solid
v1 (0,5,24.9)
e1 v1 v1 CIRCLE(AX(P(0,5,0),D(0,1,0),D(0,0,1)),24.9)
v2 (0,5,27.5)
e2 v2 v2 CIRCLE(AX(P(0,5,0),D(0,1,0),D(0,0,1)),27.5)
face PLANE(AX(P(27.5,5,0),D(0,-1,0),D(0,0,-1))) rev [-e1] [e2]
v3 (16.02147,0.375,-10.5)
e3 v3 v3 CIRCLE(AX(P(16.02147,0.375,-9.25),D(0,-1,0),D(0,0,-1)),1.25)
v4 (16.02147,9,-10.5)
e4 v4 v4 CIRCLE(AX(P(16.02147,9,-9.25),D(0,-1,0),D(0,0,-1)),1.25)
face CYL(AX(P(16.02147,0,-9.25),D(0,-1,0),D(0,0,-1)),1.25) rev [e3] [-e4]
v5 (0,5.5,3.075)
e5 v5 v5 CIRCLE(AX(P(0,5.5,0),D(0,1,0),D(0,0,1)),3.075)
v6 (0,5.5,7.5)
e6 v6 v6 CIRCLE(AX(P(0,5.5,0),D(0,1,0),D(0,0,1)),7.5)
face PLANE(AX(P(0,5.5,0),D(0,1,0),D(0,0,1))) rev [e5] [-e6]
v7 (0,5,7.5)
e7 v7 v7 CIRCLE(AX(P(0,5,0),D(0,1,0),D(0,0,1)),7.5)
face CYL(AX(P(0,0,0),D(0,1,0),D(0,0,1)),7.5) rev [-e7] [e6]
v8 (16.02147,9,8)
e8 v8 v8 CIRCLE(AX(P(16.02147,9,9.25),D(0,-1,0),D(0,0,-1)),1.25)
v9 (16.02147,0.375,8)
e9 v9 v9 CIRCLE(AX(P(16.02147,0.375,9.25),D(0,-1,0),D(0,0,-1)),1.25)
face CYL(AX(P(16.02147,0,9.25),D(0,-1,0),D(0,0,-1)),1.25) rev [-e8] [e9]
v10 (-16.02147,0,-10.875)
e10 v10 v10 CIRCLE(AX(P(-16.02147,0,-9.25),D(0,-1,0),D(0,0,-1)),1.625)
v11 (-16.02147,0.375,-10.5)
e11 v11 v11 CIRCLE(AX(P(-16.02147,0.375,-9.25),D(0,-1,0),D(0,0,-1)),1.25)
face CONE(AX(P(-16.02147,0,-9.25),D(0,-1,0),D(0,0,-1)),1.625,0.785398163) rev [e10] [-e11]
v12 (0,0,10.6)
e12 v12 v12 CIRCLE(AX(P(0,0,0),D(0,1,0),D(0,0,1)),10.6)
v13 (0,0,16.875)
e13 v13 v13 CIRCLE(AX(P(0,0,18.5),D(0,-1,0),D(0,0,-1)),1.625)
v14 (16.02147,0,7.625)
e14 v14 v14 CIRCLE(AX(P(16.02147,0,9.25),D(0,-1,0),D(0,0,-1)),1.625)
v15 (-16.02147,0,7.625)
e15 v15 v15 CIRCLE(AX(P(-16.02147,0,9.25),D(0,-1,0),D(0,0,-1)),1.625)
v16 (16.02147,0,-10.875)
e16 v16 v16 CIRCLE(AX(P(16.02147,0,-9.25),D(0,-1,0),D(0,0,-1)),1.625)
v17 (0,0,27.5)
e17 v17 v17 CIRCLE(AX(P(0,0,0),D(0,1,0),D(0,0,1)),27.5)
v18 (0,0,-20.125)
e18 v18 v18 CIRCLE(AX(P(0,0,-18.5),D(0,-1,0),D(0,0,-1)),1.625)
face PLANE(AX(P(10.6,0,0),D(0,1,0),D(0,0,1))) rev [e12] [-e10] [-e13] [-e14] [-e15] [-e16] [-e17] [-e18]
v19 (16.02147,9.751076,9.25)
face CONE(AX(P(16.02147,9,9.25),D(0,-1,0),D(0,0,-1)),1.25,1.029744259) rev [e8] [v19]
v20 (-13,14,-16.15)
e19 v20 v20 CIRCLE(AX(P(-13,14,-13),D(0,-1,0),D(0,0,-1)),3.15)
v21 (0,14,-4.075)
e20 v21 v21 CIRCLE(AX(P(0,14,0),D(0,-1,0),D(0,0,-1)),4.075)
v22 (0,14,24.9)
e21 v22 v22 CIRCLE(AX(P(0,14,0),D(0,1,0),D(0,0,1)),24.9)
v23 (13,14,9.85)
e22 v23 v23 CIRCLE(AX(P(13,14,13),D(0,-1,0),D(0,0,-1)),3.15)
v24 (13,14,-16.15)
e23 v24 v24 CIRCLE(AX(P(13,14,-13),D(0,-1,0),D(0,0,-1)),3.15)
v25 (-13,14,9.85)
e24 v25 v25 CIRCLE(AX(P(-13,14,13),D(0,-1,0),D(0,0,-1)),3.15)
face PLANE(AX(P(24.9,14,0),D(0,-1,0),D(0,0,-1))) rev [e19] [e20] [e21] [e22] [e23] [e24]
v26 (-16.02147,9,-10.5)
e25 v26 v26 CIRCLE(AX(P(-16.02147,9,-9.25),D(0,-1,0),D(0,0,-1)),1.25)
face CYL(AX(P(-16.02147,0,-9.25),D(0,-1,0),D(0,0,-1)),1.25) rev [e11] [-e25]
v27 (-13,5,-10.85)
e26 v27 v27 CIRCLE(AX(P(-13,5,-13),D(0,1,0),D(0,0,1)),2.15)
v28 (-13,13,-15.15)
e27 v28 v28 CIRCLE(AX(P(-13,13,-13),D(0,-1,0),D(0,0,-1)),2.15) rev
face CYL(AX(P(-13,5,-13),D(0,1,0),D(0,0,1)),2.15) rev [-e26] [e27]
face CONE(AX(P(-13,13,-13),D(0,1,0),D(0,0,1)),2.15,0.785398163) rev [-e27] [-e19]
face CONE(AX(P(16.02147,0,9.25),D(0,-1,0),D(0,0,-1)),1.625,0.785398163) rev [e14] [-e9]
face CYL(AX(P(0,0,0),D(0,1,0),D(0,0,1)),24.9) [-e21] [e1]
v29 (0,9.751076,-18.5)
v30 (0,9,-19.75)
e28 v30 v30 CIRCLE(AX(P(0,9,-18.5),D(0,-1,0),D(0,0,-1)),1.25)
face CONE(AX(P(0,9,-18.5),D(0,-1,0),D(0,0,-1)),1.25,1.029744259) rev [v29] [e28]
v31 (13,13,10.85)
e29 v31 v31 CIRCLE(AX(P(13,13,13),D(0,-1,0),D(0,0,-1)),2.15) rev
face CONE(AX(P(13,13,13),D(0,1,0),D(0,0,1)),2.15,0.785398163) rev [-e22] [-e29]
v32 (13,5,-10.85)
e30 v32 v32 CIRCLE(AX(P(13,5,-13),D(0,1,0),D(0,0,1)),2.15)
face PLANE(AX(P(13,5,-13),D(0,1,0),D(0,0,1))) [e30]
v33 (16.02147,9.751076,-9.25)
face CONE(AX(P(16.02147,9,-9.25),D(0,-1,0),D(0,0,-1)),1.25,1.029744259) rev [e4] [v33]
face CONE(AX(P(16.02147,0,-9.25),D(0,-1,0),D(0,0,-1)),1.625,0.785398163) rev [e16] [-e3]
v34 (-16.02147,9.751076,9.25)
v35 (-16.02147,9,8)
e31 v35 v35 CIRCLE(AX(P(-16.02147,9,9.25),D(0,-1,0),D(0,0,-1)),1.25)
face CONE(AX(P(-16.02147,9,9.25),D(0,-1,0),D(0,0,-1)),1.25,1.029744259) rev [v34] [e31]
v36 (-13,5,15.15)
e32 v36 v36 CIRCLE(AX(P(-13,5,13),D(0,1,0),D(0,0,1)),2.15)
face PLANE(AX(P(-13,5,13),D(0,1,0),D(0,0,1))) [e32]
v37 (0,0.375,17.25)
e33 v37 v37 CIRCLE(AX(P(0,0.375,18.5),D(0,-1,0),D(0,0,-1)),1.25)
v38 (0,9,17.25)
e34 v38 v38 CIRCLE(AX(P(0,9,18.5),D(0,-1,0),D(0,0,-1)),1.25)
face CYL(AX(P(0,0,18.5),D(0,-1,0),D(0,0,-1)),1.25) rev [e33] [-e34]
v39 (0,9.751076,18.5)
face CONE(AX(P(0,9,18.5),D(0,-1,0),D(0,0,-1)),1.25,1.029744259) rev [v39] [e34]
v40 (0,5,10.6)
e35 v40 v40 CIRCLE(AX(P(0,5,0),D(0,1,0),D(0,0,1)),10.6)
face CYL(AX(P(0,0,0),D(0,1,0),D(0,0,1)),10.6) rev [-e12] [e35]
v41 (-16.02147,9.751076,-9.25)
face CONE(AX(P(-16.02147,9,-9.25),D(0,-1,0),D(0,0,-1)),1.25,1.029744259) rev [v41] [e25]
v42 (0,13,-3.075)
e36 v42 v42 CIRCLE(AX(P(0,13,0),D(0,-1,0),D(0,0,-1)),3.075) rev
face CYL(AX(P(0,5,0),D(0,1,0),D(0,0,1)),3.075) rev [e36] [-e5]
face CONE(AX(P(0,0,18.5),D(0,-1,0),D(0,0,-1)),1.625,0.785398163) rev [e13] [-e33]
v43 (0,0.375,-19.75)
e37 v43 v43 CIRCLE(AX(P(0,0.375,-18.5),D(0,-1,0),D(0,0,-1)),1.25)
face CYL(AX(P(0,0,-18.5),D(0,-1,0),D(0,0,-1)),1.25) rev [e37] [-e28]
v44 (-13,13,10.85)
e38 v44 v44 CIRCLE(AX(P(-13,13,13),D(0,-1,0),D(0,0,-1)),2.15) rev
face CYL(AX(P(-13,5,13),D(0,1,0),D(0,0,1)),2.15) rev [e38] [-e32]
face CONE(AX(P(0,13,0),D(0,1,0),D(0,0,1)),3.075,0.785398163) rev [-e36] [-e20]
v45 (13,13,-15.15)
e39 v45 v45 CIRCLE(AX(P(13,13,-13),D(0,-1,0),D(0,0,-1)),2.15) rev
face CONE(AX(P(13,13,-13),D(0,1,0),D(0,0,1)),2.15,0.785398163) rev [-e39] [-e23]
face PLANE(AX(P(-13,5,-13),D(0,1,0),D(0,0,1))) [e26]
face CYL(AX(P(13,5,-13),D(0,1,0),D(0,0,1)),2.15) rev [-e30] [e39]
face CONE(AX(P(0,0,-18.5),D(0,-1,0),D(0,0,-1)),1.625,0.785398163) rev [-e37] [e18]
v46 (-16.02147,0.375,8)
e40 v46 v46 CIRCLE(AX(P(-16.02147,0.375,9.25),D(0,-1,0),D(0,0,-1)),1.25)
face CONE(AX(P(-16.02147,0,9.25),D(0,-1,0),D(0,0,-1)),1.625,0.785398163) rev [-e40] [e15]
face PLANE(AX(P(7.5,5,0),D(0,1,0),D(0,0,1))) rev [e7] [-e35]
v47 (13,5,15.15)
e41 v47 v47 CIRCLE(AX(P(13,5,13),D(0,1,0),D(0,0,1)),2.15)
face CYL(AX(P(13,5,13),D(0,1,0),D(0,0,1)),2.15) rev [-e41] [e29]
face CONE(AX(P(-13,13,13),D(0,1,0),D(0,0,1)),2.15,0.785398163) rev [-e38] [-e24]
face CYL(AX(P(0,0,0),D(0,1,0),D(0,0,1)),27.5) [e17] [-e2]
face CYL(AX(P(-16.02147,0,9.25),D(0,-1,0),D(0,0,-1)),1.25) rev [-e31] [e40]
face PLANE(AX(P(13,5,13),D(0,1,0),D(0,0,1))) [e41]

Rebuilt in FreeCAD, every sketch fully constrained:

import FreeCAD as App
import Part
import Sketcher

V = App.Vector
Q = App.Units.Quantity


def edges_at(feature, points):
    """Names of the edges that pass closest to the given points."""
    edges = feature.Shape.Edges
    near = lambda p: min(range(len(edges)), key=lambda i: edges[i].distToShape(Part.Vertex(*p))[0])
    return sorted({f"Edge{near(p) + 1}" for p in points})

doc = App.newDocument("Part")
params = doc.addObject("Spreadsheet::Sheet", "Params")
for row, (alias, value) in enumerate([
    ("sketch1_height", "5 mm"),
    ("sketch1_height2", "9 mm"),
    ("sketch1_width", "16.9 mm"),
    ("sketch1_width2", "2.6 mm"),
    ("sketch1_width3", "24.9 mm"),
    ("revolution_angle", "360 deg"),
    ("sketch2_diameter", "2.5 mm"),
    ("hole_diameter", "2.5 mm"),
    ("hole_depth", "9 mm"),
    ("hole_csink_diameter", "3.25 mm"),
    ("sketch3_diameter", "4.3 mm"),
    ("sketch3_diameter2", "6.15 mm"),
    ("pocket1_length", "9 mm"),
    ("chamfer_size", "1 mm"),
], start=1):
    params.set(f"A{row}", alias)
    params.set(f"B{row}", "=" + value)
    params.setAlias(f"B{row}", alias)

body = doc.addObject("PartDesign::Body", "Body")

sketch1 = body.newObject("Sketcher::SketchObject", "Sketch")
sketch1.AttachmentSupport = (doc.getObject("XY_Plane"), [""])
sketch1.MapMode = "FlatFace"
sketch1.addGeometry([
    Part.LineSegment(V(10.6, 0, 0), V(27.5, 0, 0)),
    Part.LineSegment(V(27.5, 0, 0), V(27.5, 5, 0)),
    Part.LineSegment(V(27.5, 5, 0), V(24.9, 5, 0)),
    Part.LineSegment(V(24.9, 5, 0), V(24.9, 14, 0)),
    Part.LineSegment(V(24.9, 14, 0), V(0, 14, 0)),
    Part.LineSegment(V(0, 14, 0), V(0, 5.5, 0)),
    Part.LineSegment(V(0, 5.5, 0), V(7.5, 5.5, 0)),
    Part.LineSegment(V(7.5, 5.5, 0), V(7.5, 5, 0)),
    Part.LineSegment(V(7.5, 5, 0), V(10.6, 5, 0)),
    Part.LineSegment(V(10.6, 5, 0), V(10.6, 0, 0)),
], False)
sketch1.addConstraint([
    Sketcher.Constraint("Coincident", 0, 2, 1, 1),
    Sketcher.Constraint("Coincident", 1, 2, 2, 1),
    Sketcher.Constraint("Coincident", 2, 2, 3, 1),
    Sketcher.Constraint("Coincident", 3, 2, 4, 1),
    Sketcher.Constraint("Coincident", 4, 2, 5, 1),
    Sketcher.Constraint("Coincident", 5, 2, 6, 1),
    Sketcher.Constraint("Coincident", 6, 2, 7, 1),
    Sketcher.Constraint("Coincident", 7, 2, 8, 1),
    Sketcher.Constraint("Coincident", 8, 2, 9, 1),
    Sketcher.Constraint("Coincident", 9, 2, 0, 1),
    Sketcher.Constraint("Horizontal", 0),
    Sketcher.Constraint("Vertical", 1),
    Sketcher.Constraint("Horizontal", 2),
    Sketcher.Constraint("Vertical", 3),
    Sketcher.Constraint("Horizontal", 4),
    Sketcher.Constraint("Vertical", 5),
    Sketcher.Constraint("Horizontal", 6),
    Sketcher.Constraint("Vertical", 7),
    Sketcher.Constraint("Horizontal", 8),
    Sketcher.Constraint("Vertical", 9),
    Sketcher.Constraint("PointOnObject", 0, 2, -1),
    Sketcher.Constraint("PointOnObject", 4, 2, -2),
    Sketcher.Constraint("Horizontal", 2, 2, 7, 2),
    Sketcher.Constraint("DistanceY", 1, 1, 1, 2, Q("5 mm")),
    Sketcher.Constraint("DistanceY", 3, 1, 3, 2, Q("9 mm")),
    Sketcher.Constraint("DistanceX", 0, 1, 0, 2, Q("16.9 mm")),
    Sketcher.Constraint("DistanceX", 2, 2, 2, 1, Q("2.6 mm")),
    Sketcher.Constraint("DistanceX", 4, 2, 4, 1, Q("24.9 mm")),
    Sketcher.Constraint("DistanceX", 6, 1, 6, 2, Q("7.5 mm")),
    Sketcher.Constraint("DistanceY", 5, 2, 5, 1, Q("8.5 mm")),
])
sketch1.setExpression("Constraints[23]", "Params.sketch1_height")
sketch1.setExpression("Constraints[24]", "Params.sketch1_height2")
sketch1.setExpression("Constraints[25]", "Params.sketch1_width")
sketch1.setExpression("Constraints[26]", "Params.sketch1_width2")
sketch1.setExpression("Constraints[27]", "Params.sketch1_width3")
revolution = body.newObject("PartDesign::Revolution", "Revolution")
revolution.Profile = sketch1
revolution.ReferenceAxis = (sketch1, ["V_Axis"])
revolution.setExpression("Angle", "Params.revolution_angle")

sketch2 = body.newObject("Sketcher::SketchObject", "Sketch001")
sketch2.AttachmentSupport = (doc.getObject("XZ_Plane"), [""])
sketch2.MapMode = "FlatFace"
sketch2.addGeometry([
    Part.Circle(V(16, -9.2, 0), V(0, 0, 1), 1.2),
    Part.Circle(V(0, -18.5, 0), V(0, 0, 1), 1.2),
    Part.Circle(V(-16, -9.2, 0), V(0, 0, 1), 1.2),
    Part.Circle(V(-16, 9.2, 0), V(0, 0, 1), 1.2),
    Part.Circle(V(0, 18.5, 0), V(0, 0, 1), 1.2),
    Part.Circle(V(16, 9.2, 0), V(0, 0, 1), 1.2),
], False)
sketch2.addConstraint([
    Sketcher.Constraint("Equal", 0, 1),
    Sketcher.Constraint("Equal", 1, 2),
    Sketcher.Constraint("Equal", 2, 3),
    Sketcher.Constraint("Equal", 3, 4),
    Sketcher.Constraint("Equal", 4, 5),
    Sketcher.Constraint("Symmetric", 0, 3, 3, 3, -1, 1),
    Sketcher.Constraint("Symmetric", 1, 3, 4, 3, -1, 1),
    Sketcher.Constraint("Symmetric", 2, 3, 5, 3, -1, 1),
    Sketcher.Constraint("Symmetric", 0, 3, 2, 3, -2),
    Sketcher.Constraint("PointOnObject", 1, 3, -2),
    Sketcher.Constraint("Diameter", 0, Q("2.5 mm")),
    Sketcher.Constraint("DistanceY", 1, 3, 4, 3, Q("37 mm")),
    Sketcher.Constraint("DistanceY", 2, 3, 3, 3, Q("18.5 mm")),
    Sketcher.Constraint("DistanceX", -1, 1, 0, 3, Q("16.02147 mm")),
])
sketch2.setExpression("Constraints[10]", "Params.sketch2_diameter")
doc.recompute()
hole = body.newObject("PartDesign::Hole", "Hole")
hole.Profile = sketch2
hole.ThreadType = "None"
hole.setExpression("Diameter", "Params.hole_diameter")
hole.DepthType = "Dimension"
hole.setExpression("Depth", "Params.hole_depth")
hole.DrillPoint = "Angled"
hole.DrillPointAngle = 118
hole.HoleCutType = "Countersink"
hole.setExpression("HoleCutDiameter", "Params.hole_csink_diameter")
hole.HoleCutCountersinkAngle = 90

sketch3 = body.newObject("Sketcher::SketchObject", "Sketch002")
sketch3.AttachmentSupport = (doc.getObject("XZ_Plane"), [""])
sketch3.MapMode = "FlatFace"
sketch3.AttachmentOffset = App.Placement(V(0, 0, -14), App.Rotation())
sketch3.addGeometry([
    Part.Circle(V(0, 0, 0), V(0, 0, 1), 3.1),
    Part.Circle(V(13, -13, 0), V(0, 0, 1), 2.1),
    Part.Circle(V(13, 13, 0), V(0, 0, 1), 2.1),
    Part.Circle(V(-13, 13, 0), V(0, 0, 1), 2.1),
    Part.Circle(V(-13, -13, 0), V(0, 0, 1), 2.1),
], False)
sketch3.addConstraint([
    Sketcher.Constraint("Coincident", 0, 3, -1, 1),
    Sketcher.Constraint("Equal", 1, 2),
    Sketcher.Constraint("Equal", 2, 3),
    Sketcher.Constraint("Equal", 3, 4),
    Sketcher.Constraint("Symmetric", 1, 3, 3, 3, -1, 1),
    Sketcher.Constraint("Symmetric", 2, 3, 4, 3, -1, 1),
    Sketcher.Constraint("Symmetric", 2, 3, 3, 3, -2),
    Sketcher.Constraint("Diameter", 1, Q("4.3 mm")),
    Sketcher.Constraint("Diameter", 0, Q("6.15 mm")),
    Sketcher.Constraint("DistanceX", -1, 1, 1, 3, Q("13 mm")),
    Sketcher.Constraint("DistanceY", 1, 3, -1, 1, Q("13 mm")),
])
sketch3.setExpression("Constraints[7]", "Params.sketch3_diameter")
sketch3.setExpression("Constraints[8]", "Params.sketch3_diameter2")
pocket1 = body.newObject("PartDesign::Pocket", "Pocket")
pocket1.Profile = sketch3
pocket1.setExpression("Length", "Params.pocket1_length")
pocket1.Reversed = True
doc.recompute()

chamfer = body.newObject("PartDesign::Chamfer", "Chamfer")
chamfer.Base = (pocket1, edges_at(pocket1, [
    (-13, 14, -15.15),
    (-13, 14, 10.85),
    (13, 14, 10.85),
    (13, 14, -15.15),
    (0, 14, -3.075),
]))
chamfer.setExpression("Size", "Params.chamfer_size")

doc.recompute()
